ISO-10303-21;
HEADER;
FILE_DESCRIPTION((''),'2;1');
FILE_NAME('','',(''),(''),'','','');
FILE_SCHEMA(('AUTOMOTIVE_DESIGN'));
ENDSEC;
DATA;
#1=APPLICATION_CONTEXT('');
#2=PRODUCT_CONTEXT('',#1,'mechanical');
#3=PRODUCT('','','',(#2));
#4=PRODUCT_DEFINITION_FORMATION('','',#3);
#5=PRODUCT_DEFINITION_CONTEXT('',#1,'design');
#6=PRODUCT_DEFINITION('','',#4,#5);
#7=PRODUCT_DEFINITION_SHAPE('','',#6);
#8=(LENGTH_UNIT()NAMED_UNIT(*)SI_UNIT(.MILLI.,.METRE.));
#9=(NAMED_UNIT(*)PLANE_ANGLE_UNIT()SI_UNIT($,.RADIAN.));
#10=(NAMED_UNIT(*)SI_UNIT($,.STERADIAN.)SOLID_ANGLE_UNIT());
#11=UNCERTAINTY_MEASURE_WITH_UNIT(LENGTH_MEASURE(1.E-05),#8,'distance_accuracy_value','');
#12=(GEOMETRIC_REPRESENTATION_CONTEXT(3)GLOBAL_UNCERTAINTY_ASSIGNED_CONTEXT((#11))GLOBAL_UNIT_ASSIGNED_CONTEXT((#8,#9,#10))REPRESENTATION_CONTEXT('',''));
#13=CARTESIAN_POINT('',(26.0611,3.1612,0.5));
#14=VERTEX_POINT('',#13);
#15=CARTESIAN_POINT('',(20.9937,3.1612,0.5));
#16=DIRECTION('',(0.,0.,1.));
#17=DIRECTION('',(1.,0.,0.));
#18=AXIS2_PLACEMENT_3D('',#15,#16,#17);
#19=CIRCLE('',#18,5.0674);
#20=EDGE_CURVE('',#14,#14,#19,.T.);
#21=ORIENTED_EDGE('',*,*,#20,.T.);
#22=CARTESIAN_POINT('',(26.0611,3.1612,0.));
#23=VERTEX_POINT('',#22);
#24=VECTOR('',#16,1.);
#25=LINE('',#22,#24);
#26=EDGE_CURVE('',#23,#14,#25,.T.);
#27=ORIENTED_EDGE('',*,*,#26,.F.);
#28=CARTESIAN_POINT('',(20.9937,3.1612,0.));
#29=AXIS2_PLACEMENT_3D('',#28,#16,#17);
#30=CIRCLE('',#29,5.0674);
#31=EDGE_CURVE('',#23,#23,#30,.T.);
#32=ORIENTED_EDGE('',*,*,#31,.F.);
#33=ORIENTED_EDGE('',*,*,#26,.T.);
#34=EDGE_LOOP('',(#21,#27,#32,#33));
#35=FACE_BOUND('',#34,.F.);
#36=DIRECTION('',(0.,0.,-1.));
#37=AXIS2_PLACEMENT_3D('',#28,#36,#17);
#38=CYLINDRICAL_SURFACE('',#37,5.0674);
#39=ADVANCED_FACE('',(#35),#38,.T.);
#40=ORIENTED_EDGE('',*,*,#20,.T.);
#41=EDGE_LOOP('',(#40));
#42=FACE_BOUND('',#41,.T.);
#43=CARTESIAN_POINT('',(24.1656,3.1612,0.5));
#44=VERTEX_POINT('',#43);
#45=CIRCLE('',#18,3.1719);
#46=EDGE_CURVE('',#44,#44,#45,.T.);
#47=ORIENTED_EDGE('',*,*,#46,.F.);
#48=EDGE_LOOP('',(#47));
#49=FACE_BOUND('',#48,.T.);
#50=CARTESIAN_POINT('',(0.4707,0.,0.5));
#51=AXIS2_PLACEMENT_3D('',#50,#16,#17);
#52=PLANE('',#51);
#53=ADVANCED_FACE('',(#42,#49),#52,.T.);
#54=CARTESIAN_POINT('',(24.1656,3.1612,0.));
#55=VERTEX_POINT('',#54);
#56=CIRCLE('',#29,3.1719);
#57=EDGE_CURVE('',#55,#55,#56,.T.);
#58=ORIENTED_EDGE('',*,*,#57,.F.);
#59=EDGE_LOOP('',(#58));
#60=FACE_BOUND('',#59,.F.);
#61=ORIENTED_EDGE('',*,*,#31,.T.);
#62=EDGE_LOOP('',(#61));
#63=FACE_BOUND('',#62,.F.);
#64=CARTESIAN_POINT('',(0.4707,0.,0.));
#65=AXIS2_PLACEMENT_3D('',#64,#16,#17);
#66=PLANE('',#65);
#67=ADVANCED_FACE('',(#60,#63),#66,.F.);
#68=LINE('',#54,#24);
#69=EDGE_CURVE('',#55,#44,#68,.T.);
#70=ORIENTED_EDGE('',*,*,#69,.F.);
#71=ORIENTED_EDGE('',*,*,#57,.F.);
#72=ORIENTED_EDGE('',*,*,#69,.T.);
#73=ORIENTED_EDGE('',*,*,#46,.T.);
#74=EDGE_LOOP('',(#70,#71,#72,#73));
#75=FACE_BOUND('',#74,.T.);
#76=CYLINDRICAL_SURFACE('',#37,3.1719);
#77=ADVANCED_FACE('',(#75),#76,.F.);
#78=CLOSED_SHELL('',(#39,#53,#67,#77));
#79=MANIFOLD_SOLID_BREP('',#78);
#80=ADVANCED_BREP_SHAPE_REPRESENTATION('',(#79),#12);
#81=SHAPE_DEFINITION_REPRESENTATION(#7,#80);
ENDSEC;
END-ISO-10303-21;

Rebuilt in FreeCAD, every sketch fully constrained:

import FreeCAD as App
import Part
import Sketcher

V = App.Vector
Q = App.Units.Quantity

doc = App.newDocument("Part")
body = doc.addObject("PartDesign::Body", "Body")

sketch1 = body.newObject("Sketcher::SketchObject", "Sketch")
sketch1.AttachmentSupport = (doc.getObject("XY_Plane"), [""])
sketch1.MapMode = "FlatFace"
sketch1.addGeometry([
    Part.Circle(V(21, 3.2, 0), V(0, 0, 1), 5.1),
    Part.Circle(V(21, 3.2, 0), V(0, 0, 1), 3.2),
], False)
sketch1.addConstraint([
    Sketcher.Constraint("Coincident", 1, 3, 0, 3),
    Sketcher.Constraint("Diameter", 0, Q("10.1348 mm")),
    Sketcher.Constraint("Diameter", 1, Q("6.3438 mm")),
    Sketcher.Constraint("DistanceX", -1, 1, 0, 3, Q("20.9937 mm")),
    Sketcher.Constraint("DistanceY", -1, 1, 0, 3, Q("3.1612 mm")),
])
pad1 = body.newObject("PartDesign::Pad", "Pad")
pad1.Profile = sketch1
pad1.Length = 0.5

doc.recompute()
